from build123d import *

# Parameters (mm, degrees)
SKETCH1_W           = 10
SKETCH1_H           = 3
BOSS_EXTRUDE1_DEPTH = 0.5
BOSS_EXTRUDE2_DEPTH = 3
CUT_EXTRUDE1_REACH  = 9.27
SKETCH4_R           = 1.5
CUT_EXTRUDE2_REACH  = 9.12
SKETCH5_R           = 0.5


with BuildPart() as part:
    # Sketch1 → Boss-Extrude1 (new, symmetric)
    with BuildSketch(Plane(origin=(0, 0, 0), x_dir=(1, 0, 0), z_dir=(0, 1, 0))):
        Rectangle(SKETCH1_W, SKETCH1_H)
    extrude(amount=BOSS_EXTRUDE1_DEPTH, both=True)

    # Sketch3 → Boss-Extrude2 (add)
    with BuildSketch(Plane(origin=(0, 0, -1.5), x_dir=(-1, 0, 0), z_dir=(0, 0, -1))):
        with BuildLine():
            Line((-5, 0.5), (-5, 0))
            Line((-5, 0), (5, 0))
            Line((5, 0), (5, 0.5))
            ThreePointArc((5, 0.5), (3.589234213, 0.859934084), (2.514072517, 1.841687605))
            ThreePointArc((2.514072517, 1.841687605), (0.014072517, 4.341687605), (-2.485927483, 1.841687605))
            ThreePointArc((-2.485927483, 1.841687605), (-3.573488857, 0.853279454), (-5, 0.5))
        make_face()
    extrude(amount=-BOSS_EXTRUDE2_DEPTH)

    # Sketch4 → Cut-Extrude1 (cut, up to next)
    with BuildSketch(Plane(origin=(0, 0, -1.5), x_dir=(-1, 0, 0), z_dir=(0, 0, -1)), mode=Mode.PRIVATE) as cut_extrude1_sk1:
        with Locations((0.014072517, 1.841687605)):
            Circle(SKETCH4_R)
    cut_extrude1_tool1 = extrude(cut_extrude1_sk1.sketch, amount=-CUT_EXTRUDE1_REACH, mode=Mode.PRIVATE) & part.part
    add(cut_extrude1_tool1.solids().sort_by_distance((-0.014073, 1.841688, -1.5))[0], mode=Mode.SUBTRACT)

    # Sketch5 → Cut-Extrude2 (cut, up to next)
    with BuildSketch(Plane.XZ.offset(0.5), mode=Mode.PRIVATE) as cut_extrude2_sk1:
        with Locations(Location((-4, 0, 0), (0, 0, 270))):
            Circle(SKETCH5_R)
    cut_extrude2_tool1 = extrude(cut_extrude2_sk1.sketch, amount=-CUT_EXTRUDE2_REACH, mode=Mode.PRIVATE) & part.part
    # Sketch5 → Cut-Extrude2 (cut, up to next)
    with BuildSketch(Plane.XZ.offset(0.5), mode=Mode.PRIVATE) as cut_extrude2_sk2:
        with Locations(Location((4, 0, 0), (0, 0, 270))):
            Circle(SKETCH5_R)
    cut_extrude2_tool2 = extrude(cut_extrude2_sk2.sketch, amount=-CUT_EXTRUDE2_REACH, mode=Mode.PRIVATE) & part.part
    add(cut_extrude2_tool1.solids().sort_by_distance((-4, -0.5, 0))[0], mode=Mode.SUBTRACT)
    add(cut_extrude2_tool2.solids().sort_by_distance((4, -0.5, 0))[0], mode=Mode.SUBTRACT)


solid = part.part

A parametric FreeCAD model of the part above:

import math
import FreeCAD as App
import Part
import Sketcher


def add_polygon(sketch, points):
    """Adds a closed chain of lines whose ends are joined by coincident constraints."""
    first, n = sketch.GeometryCount, len(points)
    for a, b in zip(points, points[1:] + points[:1]):
        sketch.addGeometry(Part.LineSegment(App.Vector(*a, 0), App.Vector(*b, 0)), False)
    for i in range(n):
        sketch.addConstraint(Sketcher.Constraint("Coincident", first + i, 2, first + (i + 1) % n, 1))

doc = App.newDocument("Part")
body = doc.addObject("PartDesign::Body", "Body")

# Sketch on XZ plane
sketch1 = doc.addObject("Sketcher::SketchObject", "Sketch")
body.addObject(sketch1)
sketch1.AttachmentSupport = (doc.XZ_Plane, [""])
sketch1.MapMode = "FlatFace"
add_polygon(sketch1, [(-5, -1.5), (-5, 1.5), (5, 1.5), (5, -1.5)])  # lines 0-3
sketch1.addConstraint([
    Sketcher.Constraint("Vertical", 0),
    Sketcher.Constraint("Horizontal", 1),
    Sketcher.Constraint("Vertical", 2),
    Sketcher.Constraint("Horizontal", 3),
    Sketcher.Constraint("Symmetric", 0, 2, 2, 2, -1, 1),
    Sketcher.Constraint("DistanceX", 1, 1, 1, 2, 10.0),
    Sketcher.Constraint("DistanceY", 0, 1, 0, 2, 3.0),
])
pad1 = doc.addObject("PartDesign::Pad", "Pad")
body.addObject(pad1)
pad1.Profile = sketch1
pad1.Length = 1
pad1.Midplane = True

# Sketch on XY plane
sketch2 = doc.addObject("Sketcher::SketchObject", "Sketch001")
body.addObject(sketch2)
sketch2.AttachmentSupport = (doc.XY_Plane, [""])
sketch2.MapMode = "FlatFace"
sketch2.AttachmentOffset = App.Placement(App.Vector(0, 0, -1.5), App.Rotation())
sketch2.addGeometry([
    Part.LineSegment(App.Vector(5, 0.5, 0), App.Vector(5, 0, 0)),  # 0
    Part.LineSegment(App.Vector(5, 0, 0), App.Vector(-5, 0, 0)),  # 1
    Part.LineSegment(App.Vector(-5, 0, 0), App.Vector(-5, 0.5, 0)),  # 2
    Part.ArcOfCircle(Part.Circle(App.Vector(-5.014094, 3.499967, 0), App.Vector(0, 0, 1), 3), math.radians(-89.730814), math.radians(-33.556551)),  # 3
    Part.ArcOfCircle(Part.Circle(App.Vector(-0.014073, 1.841688, 0), App.Vector(0, 0, 1), 2.5), math.radians(0), math.radians(180)),  # 4
    Part.ArcOfCircle(Part.Circle(App.Vector(4.985949, 3.499967, 0), App.Vector(0, 0, 1), 3), math.radians(-146.443444), math.radians(-89.731651)),  # 5
], False)
sketch2.addConstraint([
    Sketcher.Constraint("Coincident", 0, 2, 1, 1),
    Sketcher.Constraint("Coincident", 1, 2, 2, 1),
    Sketcher.Constraint("Coincident", 2, 2, 3, 1),
    Sketcher.Constraint("Coincident", 3, 2, 4, 2),
    Sketcher.Constraint("Coincident", 4, 1, 5, 1),
    Sketcher.Constraint("Coincident", 5, 2, 0, 1),
    Sketcher.Constraint("Vertical", 0),
    Sketcher.Constraint("Horizontal", 1),
    Sketcher.Constraint("Vertical", 2),
    Sketcher.Constraint("PointOnObject", 0, 2, -1),
    Sketcher.Constraint("Radius", 3, 3.0),
    Sketcher.Constraint("Radius", 5, 3.0),
    Sketcher.Constraint("Radius", 4, 2.5),
    Sketcher.Constraint("DistanceX", 1, 2, 1, 1, 10.0),
    Sketcher.Constraint("DistanceY", 0, 2, 0, 1, 0.5),
    Sketcher.Constraint("DistanceY", 2, 1, 2, 2, 0.5),
    Sketcher.Constraint("DistanceX", -1, 1, 0, 2, 5.0),
    Sketcher.Constraint("DistanceX", -1, 1, 5, 3, 4.985949),
    Sketcher.Constraint("DistanceX", 3, 3, 4, 3, 5.000022),
    Sketcher.Constraint("DistanceY", 4, 3, 3, 3, 1.658279),
    Sketcher.Constraint("DistanceX", 4, 3, 5, 3, 5.000022),
])
pad2 = doc.addObject("PartDesign::Pad", "Pad001")
body.addObject(pad2)
pad2.Profile = sketch2
pad2.Length = 3

# Sketch on XY plane
sketch3 = doc.addObject("Sketcher::SketchObject", "Sketch002")
body.addObject(sketch3)
sketch3.AttachmentSupport = (doc.XY_Plane, [""])
sketch3.MapMode = "FlatFace"
sketch3.AttachmentOffset = App.Placement(App.Vector(0, 0, -1.5), App.Rotation())
sketch3.addGeometry(Part.Circle(App.Vector(0, 1.8, 0), App.Vector(0, 0, 1), 1.5), False)
sketch3.addConstraint([
    Sketcher.Constraint("Diameter", 0, 3.0),
    Sketcher.Constraint("DistanceX", 0, 3, -1, 1, 0.014073),
    Sketcher.Constraint("DistanceY", -1, 1, 0, 3, 1.841688),
])
pocket1 = doc.addObject("PartDesign::Pocket", "Pocket")
body.addObject(pocket1)
pocket1.Profile = sketch3
pocket1.Type = "UpToFirst"
pocket1.Reversed = True

# Sketch on XZ plane
sketch4 = doc.addObject("Sketcher::SketchObject", "Sketch003")
body.addObject(sketch4)
sketch4.AttachmentSupport = (doc.XZ_Plane, [""])
sketch4.MapMode = "FlatFace"
sketch4.AttachmentOffset = App.Placement(App.Vector(0, 0, 0.5), App.Rotation())
sketch4.addGeometry(Part.Circle(App.Vector(-4, 0, 0), App.Vector(0, 0, 1), 0.5), False)
sketch4.addConstraint([
    Sketcher.Constraint("PointOnObject", 0, 3, -1),
    Sketcher.Constraint("Diameter", 0, 1.0),
    Sketcher.Constraint("DistanceX", 0, 3, -1, 1, 4.0),
])
pocket2 = doc.addObject("PartDesign::Pocket", "Pocket001")
body.addObject(pocket2)
pocket2.Profile = sketch4
pocket2.Type = "UpToFirst"

# Sketch on XZ plane
sketch5 = doc.addObject("Sketcher::SketchObject", "Sketch004")
body.addObject(sketch5)
sketch5.AttachmentSupport = (doc.XZ_Plane, [""])
sketch5.MapMode = "FlatFace"
sketch5.AttachmentOffset = App.Placement(App.Vector(0, 0, 0.5), App.Rotation())
sketch5.addGeometry(Part.Circle(App.Vector(4, 0, 0), App.Vector(0, 0, 1), 0.5), False)
sketch5.addConstraint([
    Sketcher.Constraint("PointOnObject", 0, 3, -1),
    Sketcher.Constraint("Diameter", 0, 1.0),
    Sketcher.Constraint("DistanceX", -1, 1, 0, 3, 4.0),
])
pocket3 = doc.addObject("PartDesign::Pocket", "Pocket002")
body.addObject(pocket3)
pocket3.Profile = sketch5
pocket3.Type = "UpToFirst"

doc.recompute()
